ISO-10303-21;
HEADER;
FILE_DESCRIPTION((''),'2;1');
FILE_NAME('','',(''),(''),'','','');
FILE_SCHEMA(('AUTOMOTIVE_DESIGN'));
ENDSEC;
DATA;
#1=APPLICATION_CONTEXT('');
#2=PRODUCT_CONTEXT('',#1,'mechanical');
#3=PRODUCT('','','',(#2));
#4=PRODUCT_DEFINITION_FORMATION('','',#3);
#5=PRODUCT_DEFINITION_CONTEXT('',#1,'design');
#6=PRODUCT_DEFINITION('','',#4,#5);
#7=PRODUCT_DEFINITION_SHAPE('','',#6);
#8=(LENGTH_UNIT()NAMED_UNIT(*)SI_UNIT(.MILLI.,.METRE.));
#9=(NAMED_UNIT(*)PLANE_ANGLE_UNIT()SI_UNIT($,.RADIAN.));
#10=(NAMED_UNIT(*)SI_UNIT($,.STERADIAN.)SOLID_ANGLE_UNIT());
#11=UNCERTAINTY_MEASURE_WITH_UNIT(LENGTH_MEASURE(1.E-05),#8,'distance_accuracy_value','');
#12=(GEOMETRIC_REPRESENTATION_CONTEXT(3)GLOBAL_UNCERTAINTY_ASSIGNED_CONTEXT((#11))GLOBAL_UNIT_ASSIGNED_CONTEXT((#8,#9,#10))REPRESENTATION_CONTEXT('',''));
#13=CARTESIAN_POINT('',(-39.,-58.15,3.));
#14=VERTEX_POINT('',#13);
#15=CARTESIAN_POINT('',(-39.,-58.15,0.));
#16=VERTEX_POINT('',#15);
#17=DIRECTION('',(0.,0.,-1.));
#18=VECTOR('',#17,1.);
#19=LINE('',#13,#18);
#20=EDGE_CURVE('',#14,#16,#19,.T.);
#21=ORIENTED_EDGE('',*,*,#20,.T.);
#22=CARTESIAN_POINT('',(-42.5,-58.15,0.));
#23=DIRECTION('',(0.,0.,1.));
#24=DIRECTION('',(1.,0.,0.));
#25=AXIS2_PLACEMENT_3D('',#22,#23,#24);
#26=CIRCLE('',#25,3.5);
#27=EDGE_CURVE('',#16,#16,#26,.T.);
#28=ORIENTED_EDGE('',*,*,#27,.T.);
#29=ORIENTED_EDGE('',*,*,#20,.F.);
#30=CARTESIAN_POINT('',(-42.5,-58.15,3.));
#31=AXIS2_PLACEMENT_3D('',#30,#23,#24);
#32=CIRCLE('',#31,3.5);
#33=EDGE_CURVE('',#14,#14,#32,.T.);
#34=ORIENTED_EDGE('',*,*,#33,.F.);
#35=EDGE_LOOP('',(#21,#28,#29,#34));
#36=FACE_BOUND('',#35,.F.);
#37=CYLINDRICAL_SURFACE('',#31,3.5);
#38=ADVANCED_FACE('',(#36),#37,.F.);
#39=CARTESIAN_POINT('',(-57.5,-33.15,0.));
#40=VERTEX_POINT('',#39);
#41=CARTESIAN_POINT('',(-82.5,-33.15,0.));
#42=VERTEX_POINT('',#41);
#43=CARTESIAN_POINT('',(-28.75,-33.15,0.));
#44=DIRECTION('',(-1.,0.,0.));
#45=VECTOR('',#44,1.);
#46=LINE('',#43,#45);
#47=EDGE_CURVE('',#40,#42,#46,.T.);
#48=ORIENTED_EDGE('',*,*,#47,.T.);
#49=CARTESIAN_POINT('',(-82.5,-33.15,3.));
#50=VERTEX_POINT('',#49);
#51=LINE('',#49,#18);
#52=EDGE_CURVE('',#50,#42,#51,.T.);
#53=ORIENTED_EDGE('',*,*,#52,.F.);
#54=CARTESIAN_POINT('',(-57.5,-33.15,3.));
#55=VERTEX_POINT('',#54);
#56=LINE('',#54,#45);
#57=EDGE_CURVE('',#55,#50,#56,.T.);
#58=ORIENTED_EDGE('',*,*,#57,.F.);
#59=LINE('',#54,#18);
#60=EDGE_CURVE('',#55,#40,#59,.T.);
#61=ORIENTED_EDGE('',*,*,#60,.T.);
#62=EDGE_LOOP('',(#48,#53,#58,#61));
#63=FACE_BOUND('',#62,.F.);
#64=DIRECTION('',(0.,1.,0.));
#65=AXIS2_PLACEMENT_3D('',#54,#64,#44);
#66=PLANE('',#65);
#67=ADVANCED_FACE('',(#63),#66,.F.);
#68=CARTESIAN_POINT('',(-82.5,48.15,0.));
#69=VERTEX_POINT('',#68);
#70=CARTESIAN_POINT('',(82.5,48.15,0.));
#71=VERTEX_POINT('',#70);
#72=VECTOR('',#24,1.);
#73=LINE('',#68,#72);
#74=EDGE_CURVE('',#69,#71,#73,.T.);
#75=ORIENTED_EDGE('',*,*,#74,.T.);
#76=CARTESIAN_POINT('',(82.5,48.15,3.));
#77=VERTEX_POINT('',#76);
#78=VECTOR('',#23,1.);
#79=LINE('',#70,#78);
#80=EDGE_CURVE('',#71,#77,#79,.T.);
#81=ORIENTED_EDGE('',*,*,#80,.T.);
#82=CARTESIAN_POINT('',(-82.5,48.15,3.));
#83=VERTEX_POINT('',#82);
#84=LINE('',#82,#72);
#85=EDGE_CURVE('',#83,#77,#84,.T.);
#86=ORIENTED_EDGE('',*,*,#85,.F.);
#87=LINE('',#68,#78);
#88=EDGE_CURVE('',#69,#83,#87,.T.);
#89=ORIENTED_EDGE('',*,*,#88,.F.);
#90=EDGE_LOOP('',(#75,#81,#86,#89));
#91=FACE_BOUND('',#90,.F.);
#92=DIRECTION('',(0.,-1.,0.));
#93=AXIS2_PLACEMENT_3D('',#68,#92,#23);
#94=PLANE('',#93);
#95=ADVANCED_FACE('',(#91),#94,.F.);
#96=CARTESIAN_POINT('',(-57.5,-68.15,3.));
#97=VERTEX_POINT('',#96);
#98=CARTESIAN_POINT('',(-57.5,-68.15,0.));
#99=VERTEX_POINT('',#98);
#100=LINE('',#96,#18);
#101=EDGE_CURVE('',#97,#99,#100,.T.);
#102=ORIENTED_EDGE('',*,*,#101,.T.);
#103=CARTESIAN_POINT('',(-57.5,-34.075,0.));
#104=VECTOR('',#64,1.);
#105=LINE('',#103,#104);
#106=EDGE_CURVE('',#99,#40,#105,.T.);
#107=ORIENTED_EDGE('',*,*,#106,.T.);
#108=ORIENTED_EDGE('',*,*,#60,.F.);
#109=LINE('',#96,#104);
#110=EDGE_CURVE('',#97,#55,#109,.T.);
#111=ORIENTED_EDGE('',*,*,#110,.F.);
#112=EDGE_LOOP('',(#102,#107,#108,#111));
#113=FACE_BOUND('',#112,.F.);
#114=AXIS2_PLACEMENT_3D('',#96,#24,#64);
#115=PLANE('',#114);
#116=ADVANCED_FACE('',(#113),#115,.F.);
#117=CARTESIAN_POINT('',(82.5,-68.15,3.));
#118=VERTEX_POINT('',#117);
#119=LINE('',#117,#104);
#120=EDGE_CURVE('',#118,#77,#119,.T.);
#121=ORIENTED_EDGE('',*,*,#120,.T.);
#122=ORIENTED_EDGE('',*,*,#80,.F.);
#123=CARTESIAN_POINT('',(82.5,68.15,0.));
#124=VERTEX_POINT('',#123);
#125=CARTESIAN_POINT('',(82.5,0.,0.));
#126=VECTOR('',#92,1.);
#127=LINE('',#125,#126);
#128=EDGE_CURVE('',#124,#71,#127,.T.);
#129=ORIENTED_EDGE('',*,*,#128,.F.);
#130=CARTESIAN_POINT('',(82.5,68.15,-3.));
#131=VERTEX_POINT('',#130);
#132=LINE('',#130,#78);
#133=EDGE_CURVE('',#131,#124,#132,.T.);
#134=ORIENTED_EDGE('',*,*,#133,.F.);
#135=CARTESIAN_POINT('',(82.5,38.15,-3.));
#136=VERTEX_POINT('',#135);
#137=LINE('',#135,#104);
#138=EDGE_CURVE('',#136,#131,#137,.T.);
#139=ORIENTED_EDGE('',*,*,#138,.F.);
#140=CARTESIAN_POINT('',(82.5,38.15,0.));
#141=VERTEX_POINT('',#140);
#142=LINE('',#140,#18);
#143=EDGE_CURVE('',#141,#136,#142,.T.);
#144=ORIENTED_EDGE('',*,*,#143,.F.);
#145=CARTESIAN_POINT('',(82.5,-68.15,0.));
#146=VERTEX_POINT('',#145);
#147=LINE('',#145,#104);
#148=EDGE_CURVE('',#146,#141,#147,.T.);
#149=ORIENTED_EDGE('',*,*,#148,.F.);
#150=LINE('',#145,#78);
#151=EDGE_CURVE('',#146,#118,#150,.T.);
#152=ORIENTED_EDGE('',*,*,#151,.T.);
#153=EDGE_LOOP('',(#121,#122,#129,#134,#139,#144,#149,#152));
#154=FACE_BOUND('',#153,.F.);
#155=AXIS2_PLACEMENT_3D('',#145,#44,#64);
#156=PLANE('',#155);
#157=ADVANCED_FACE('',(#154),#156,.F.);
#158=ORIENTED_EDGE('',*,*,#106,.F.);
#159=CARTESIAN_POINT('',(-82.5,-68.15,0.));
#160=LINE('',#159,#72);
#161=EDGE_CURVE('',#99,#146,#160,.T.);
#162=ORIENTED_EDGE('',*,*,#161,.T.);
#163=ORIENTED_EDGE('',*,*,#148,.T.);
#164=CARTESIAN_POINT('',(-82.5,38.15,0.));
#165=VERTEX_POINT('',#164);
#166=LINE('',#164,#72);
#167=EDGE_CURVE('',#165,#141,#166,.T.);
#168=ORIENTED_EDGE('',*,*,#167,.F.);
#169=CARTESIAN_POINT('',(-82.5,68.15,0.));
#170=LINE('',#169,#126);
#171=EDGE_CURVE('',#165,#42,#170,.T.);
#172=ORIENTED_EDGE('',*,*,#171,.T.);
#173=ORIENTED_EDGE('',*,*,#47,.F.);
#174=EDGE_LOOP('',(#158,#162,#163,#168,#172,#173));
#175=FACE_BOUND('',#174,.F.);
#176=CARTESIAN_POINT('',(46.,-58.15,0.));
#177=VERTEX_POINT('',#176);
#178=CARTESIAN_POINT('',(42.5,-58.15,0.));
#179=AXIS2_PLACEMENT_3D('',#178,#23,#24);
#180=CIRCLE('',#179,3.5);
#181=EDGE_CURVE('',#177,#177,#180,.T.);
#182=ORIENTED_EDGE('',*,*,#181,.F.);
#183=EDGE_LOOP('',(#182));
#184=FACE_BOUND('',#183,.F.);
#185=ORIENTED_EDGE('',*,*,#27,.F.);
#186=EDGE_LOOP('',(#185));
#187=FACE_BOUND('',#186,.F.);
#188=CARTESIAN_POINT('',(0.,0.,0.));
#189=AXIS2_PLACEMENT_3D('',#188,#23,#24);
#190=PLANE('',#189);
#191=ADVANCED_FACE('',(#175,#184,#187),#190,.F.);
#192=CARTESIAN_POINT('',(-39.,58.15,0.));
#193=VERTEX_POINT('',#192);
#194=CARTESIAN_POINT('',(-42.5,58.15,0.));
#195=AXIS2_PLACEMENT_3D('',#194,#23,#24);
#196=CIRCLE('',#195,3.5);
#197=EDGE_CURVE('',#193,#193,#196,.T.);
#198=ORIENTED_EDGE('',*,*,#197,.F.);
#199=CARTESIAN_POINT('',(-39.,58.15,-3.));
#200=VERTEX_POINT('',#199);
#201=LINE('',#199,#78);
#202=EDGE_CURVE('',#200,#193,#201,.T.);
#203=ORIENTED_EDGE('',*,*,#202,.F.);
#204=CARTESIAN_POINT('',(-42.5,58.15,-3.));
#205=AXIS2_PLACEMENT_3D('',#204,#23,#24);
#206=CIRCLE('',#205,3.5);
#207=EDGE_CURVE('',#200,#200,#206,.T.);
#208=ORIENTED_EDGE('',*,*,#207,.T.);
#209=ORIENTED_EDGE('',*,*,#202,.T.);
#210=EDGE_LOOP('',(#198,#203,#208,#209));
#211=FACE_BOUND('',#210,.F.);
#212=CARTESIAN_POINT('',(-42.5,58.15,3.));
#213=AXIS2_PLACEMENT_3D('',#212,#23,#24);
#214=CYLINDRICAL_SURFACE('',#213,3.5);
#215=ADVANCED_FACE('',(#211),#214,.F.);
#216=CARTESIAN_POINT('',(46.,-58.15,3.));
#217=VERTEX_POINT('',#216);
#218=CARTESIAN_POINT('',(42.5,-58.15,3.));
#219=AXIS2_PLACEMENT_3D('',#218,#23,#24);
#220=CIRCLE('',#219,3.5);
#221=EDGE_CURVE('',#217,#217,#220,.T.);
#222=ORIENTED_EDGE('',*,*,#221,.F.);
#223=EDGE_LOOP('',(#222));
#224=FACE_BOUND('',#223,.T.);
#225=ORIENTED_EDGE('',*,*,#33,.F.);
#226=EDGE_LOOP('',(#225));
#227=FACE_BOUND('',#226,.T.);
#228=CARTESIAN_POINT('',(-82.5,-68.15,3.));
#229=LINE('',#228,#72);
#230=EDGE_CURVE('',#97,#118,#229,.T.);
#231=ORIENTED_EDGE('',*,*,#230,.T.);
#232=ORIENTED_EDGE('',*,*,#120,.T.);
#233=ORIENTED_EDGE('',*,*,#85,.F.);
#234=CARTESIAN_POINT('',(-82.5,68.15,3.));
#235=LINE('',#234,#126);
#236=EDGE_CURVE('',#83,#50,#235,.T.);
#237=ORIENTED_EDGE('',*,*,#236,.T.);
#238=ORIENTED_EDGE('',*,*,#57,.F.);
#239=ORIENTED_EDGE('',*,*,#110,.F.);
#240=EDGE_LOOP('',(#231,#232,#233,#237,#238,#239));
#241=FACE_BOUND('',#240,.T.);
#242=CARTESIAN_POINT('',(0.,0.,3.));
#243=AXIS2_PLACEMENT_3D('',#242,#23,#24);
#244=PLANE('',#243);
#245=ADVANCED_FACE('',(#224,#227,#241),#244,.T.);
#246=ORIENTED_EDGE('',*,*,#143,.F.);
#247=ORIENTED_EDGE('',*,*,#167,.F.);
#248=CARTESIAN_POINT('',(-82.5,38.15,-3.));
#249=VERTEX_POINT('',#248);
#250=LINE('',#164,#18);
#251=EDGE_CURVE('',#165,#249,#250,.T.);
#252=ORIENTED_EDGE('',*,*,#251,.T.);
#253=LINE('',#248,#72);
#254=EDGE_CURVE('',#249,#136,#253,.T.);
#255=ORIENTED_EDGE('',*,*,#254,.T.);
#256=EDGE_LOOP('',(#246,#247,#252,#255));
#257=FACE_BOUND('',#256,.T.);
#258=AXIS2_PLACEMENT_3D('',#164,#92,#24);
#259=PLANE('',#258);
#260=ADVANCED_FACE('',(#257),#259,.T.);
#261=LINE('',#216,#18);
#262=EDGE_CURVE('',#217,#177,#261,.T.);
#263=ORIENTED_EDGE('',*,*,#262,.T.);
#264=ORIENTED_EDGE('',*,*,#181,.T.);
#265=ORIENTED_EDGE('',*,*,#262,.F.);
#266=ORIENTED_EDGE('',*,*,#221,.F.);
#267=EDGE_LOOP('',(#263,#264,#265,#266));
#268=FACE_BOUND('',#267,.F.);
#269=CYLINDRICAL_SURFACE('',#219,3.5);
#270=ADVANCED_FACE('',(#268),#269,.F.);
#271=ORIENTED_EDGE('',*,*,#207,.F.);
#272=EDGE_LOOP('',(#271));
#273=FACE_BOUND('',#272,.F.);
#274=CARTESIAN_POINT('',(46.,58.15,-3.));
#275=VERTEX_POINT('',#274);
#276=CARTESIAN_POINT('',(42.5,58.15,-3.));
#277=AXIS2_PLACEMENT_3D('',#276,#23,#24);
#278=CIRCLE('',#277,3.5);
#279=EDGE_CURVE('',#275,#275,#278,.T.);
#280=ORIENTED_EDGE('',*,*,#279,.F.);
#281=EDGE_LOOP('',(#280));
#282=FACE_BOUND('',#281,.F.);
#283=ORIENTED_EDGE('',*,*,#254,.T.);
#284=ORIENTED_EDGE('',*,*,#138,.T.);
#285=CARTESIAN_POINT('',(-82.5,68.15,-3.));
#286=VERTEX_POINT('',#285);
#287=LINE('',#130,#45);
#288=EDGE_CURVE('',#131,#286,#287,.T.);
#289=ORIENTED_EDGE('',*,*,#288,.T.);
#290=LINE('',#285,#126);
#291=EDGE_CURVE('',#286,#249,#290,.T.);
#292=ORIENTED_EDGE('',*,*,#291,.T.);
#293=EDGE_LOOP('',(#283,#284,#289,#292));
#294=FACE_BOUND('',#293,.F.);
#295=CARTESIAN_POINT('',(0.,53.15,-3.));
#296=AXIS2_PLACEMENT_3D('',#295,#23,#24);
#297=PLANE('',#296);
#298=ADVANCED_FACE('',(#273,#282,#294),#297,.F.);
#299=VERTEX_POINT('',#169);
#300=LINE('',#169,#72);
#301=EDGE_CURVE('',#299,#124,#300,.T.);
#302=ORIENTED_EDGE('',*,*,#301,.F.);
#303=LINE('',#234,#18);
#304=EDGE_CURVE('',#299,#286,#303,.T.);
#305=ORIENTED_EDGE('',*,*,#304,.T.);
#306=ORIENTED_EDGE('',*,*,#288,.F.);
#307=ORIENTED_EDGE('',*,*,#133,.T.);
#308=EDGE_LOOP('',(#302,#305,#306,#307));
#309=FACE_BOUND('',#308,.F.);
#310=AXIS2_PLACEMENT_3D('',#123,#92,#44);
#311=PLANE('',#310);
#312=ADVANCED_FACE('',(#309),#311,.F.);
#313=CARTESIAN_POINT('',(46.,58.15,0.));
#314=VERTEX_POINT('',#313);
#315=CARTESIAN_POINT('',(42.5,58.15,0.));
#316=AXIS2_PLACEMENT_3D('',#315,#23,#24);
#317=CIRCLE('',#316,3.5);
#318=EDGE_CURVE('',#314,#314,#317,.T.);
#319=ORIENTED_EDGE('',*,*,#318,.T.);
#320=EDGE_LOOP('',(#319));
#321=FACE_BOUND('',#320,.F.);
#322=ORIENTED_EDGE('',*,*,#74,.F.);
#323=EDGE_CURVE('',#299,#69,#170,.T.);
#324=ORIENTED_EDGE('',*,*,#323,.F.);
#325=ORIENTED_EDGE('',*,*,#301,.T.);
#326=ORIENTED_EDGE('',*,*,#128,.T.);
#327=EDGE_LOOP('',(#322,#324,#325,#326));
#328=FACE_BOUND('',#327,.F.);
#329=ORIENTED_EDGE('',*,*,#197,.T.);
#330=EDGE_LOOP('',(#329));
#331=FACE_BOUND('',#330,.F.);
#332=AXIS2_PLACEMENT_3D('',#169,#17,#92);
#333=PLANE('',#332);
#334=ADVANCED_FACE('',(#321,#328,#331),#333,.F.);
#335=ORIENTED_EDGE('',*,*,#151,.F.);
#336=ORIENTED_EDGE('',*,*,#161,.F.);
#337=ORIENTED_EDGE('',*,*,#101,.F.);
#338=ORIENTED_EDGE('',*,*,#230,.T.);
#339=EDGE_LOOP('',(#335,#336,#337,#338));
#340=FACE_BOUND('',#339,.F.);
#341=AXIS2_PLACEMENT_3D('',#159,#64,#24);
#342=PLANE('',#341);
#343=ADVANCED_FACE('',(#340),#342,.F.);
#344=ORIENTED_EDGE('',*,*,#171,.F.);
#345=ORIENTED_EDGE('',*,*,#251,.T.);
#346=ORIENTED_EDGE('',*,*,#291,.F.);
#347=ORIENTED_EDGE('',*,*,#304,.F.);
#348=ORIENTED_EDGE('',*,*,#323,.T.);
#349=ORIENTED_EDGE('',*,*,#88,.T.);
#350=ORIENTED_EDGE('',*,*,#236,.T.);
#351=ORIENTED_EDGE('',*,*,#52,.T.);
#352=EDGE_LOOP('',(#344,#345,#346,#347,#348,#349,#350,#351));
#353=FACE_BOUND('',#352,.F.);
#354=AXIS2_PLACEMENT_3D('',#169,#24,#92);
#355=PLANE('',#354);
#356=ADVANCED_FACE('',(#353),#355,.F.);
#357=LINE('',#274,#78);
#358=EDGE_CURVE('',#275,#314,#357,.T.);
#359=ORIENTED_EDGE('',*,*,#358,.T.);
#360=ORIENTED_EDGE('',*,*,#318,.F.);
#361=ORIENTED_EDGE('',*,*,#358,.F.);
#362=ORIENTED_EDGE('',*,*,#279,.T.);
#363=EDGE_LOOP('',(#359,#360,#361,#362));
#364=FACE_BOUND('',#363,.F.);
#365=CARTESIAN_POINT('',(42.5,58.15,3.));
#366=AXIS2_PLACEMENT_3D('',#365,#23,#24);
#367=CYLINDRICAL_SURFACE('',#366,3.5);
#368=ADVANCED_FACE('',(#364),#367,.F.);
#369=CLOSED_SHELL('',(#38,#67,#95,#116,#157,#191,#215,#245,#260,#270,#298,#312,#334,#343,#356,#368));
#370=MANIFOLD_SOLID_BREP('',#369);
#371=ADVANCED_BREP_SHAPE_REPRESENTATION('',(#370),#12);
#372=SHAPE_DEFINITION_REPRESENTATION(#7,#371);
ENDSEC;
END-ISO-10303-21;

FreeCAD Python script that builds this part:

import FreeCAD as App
import Part
import Sketcher
from FreeCAD import Vector


def add_polygon(sketch, points):
    """Adds a closed chain of lines whose ends are joined by coincident constraints."""
    first, n = sketch.GeometryCount, len(points)
    for a, b in zip(points, points[1:] + points[:1]):
        sketch.addGeometry(Part.LineSegment(App.Vector(*a, 0), App.Vector(*b, 0)), False)
    for i in range(n):
        sketch.addConstraint(Sketcher.Constraint("Coincident", first + i, 2, first + (i + 1) % n, 1))

doc = App.newDocument("Part")
body = doc.addObject("PartDesign::Body", "Body")

sketch1 = doc.addObject("Sketcher::SketchObject", "Sketch")
body.addObject(sketch1)
sketch1.AttachmentSupport = (doc.XY_Plane, [""])
sketch1.MapMode = "FlatFace"
add_polygon(sketch1, [(-82.5, 68.15), (-82.5, -68.15), (82.5, -68.15), (82.5, 68.15)])
sketch1.addConstraint([
    Sketcher.Constraint("Vertical", 0),
    Sketcher.Constraint("Horizontal", 1),
    Sketcher.Constraint("Vertical", 2),
    Sketcher.Constraint("Horizontal", 3),
    Sketcher.Constraint("Symmetric", 0, 2, 2, 2, -1, 1),
    Sketcher.Constraint("DistanceX", 0, 2, -1, 1, 82.5),
    Sketcher.Constraint("DistanceY", 0, 2, 0, 1, 136.3),
])
pad1 = doc.addObject("PartDesign::Pad", "Pad")
body.addObject(pad1)
pad1.Profile = sketch1
pad1.Length = 3

sketch2 = doc.addObject("Sketcher::SketchObject", "Sketch001")
body.addObject(sketch2)
sketch2.AttachmentSupport = (doc.XY_Plane, [""])
sketch2.MapMode = "FlatFace"
sketch2.AttachmentOffset = App.Placement(Vector(0, 0, 3), App.Rotation())
sketch2.addGeometry([
    Part.Circle(Vector(-42.5, 58.15, 0), Vector(0, 0, 1), 3.5),
    Part.Circle(Vector(42.5, 58.15, 0), Vector(0, 0, 1), 3.5),
    Part.Circle(Vector(42.5, -58.15, 0), Vector(0, 0, 1), 3.5),
    Part.Circle(Vector(-42.5, -58.15, 0), Vector(0, 0, 1), 3.5),
], False)
sketch2.addConstraint([
    Sketcher.Constraint("Equal", 0, 1),
    Sketcher.Constraint("Equal", 1, 2),
    Sketcher.Constraint("Equal", 2, 3),
    Sketcher.Constraint("Symmetric", 0, 3, 2, 3, -1, 1),
    Sketcher.Constraint("Symmetric", 1, 3, 3, 3, -1, 1),
    Sketcher.Constraint("Symmetric", 0, 3, 1, 3, -2),
    Sketcher.Constraint("Diameter", 0, 7.0),
    Sketcher.Constraint("DistanceX", 0, 3, -1, 1, 42.5),
    Sketcher.Constraint("DistanceY", 2, 3, 1, 3, 116.3),
])
pocket1 = doc.addObject("PartDesign::Pocket", "Pocket")
body.addObject(pocket1)
pocket1.Profile = sketch2
pocket1.Length = 245.2559

sketch3 = doc.addObject("Sketcher::SketchObject", "Sketch002")
body.addObject(sketch3)
sketch3.AttachmentSupport = (doc.XY_Plane, [""])
sketch3.MapMode = "FlatFace"
sketch3.AttachmentOffset = App.Placement(Vector(0, 0, 3), App.Rotation())
add_polygon(sketch3, [(-82.5, -33.15), (-82.5, -68.15), (-57.5, -68.15), (-57.5, -33.15)])
sketch3.addConstraint([
    Sketcher.Constraint("Vertical", 0),
    Sketcher.Constraint("Horizontal", 1),
    Sketcher.Constraint("Vertical", 2),
    Sketcher.Constraint("Horizontal", 3),
    Sketcher.Constraint("DistanceX", 1, 2, -1, 1, 57.5),
    Sketcher.Constraint("DistanceX", 1, 1, 1, 2, 25.0),
    Sketcher.Constraint("DistanceY", 0, 2, 0, 1, 35.0),
    Sketcher.Constraint("DistanceY", 0, 2, -1, 1, 68.15),
])
pocket2 = doc.addObject("PartDesign::Pocket", "Pocket001")
body.addObject(pocket2)
pocket2.Profile = sketch3
pocket2.Type = "ThroughAll"

sketch4 = doc.addObject("Sketcher::SketchObject", "Sketch003")
body.addObject(sketch4)
sketch4.AttachmentSupport = (doc.XY_Plane, [""])
sketch4.MapMode = "FlatFace"
add_polygon(sketch4, [(-82.5, 68.15), (82.5, 68.15), (82.5, 38.15), (-82.5, 38.15)])
sketch4.addConstraint([
    Sketcher.Constraint("Horizontal", 0),
    Sketcher.Constraint("Vertical", 1),
    Sketcher.Constraint("Horizontal", 2),
    Sketcher.Constraint("Vertical", 3),
    Sketcher.Constraint("DistanceX", -1, 1, 0, 2, 82.5),
    Sketcher.Constraint("DistanceX", 2, 2, -1, 1, 82.5),
    Sketcher.Constraint("DistanceY", 1, 2, 1, 1, 30.0),
    Sketcher.Constraint("DistanceY", -1, 1, 0, 2, 68.15),
])
pad2 = doc.addObject("PartDesign::Pad", "Pad001")
body.addObject(pad2)
pad2.Profile = sketch4
pad2.Length = 3
pad2.Reversed = True

sketch5 = doc.addObject("Sketcher::SketchObject", "Sketch004")
body.addObject(sketch5)
sketch5.AttachmentSupport = (doc.XY_Plane, [""])
sketch5.MapMode = "FlatFace"
sketch5.AttachmentOffset = App.Placement(Vector(0, 0, 3), App.Rotation())
sketch5.addGeometry([
    Part.Circle(Vector(-42.5, 58.15, 0), Vector(0, 0, 1), 3.5),
    Part.Circle(Vector(42.5, 58.15, 0), Vector(0, 0, 1), 3.5),
], False)
sketch5.addConstraint([
    Sketcher.Constraint("Equal", 0, 1),
    Sketcher.Constraint("Symmetric", 0, 3, 1, 3, -2),
    Sketcher.Constraint("Diameter", 0, 7.0),
    Sketcher.Constraint("DistanceX", 0, 3, 1, 3, 85.0),
    Sketcher.Constraint("DistanceY", -1, 1, 0, 3, 58.15),
])
pocket3 = doc.addObject("PartDesign::Pocket", "Pocket002")
body.addObject(pocket3)
pocket3.Profile = sketch5
pocket3.Type = "ThroughAll"

sketch6 = doc.addObject("Sketcher::SketchObject", "Sketch005")
body.addObject(sketch6)
sketch6.AttachmentSupport = (doc.YZ_Plane, [""])
sketch6.MapMode = "FlatFace"
sketch6.AttachmentOffset = App.Placement(Vector(0, 0, -82.5), App.Rotation())
add_polygon(sketch6, [(68.15, 3), (68.15, 0), (48.15, 0), (48.15, 3)])
sketch6.addConstraint([
    Sketcher.Constraint("Vertical", 0),
    Sketcher.Constraint("Horizontal", 1),
    Sketcher.Constraint("Vertical", 2),
    Sketcher.Constraint("Horizontal", 3),
    Sketcher.Constraint("PointOnObject", 0, 2, -1),
    Sketcher.Constraint("DistanceX", 1, 2, 1, 1, 20.0),
    Sketcher.Constraint("DistanceY", 0, 2, 0, 1, 3.0),
    Sketcher.Constraint("DistanceX", -1, 1, 0, 2, 68.15),
])
pocket4 = doc.addObject("PartDesign::Pocket", "Pocket003")
body.addObject(pocket4)
pocket4.Profile = sketch6
pocket4.Type = "ThroughAll"
pocket4.Reversed = True

doc.recompute()
